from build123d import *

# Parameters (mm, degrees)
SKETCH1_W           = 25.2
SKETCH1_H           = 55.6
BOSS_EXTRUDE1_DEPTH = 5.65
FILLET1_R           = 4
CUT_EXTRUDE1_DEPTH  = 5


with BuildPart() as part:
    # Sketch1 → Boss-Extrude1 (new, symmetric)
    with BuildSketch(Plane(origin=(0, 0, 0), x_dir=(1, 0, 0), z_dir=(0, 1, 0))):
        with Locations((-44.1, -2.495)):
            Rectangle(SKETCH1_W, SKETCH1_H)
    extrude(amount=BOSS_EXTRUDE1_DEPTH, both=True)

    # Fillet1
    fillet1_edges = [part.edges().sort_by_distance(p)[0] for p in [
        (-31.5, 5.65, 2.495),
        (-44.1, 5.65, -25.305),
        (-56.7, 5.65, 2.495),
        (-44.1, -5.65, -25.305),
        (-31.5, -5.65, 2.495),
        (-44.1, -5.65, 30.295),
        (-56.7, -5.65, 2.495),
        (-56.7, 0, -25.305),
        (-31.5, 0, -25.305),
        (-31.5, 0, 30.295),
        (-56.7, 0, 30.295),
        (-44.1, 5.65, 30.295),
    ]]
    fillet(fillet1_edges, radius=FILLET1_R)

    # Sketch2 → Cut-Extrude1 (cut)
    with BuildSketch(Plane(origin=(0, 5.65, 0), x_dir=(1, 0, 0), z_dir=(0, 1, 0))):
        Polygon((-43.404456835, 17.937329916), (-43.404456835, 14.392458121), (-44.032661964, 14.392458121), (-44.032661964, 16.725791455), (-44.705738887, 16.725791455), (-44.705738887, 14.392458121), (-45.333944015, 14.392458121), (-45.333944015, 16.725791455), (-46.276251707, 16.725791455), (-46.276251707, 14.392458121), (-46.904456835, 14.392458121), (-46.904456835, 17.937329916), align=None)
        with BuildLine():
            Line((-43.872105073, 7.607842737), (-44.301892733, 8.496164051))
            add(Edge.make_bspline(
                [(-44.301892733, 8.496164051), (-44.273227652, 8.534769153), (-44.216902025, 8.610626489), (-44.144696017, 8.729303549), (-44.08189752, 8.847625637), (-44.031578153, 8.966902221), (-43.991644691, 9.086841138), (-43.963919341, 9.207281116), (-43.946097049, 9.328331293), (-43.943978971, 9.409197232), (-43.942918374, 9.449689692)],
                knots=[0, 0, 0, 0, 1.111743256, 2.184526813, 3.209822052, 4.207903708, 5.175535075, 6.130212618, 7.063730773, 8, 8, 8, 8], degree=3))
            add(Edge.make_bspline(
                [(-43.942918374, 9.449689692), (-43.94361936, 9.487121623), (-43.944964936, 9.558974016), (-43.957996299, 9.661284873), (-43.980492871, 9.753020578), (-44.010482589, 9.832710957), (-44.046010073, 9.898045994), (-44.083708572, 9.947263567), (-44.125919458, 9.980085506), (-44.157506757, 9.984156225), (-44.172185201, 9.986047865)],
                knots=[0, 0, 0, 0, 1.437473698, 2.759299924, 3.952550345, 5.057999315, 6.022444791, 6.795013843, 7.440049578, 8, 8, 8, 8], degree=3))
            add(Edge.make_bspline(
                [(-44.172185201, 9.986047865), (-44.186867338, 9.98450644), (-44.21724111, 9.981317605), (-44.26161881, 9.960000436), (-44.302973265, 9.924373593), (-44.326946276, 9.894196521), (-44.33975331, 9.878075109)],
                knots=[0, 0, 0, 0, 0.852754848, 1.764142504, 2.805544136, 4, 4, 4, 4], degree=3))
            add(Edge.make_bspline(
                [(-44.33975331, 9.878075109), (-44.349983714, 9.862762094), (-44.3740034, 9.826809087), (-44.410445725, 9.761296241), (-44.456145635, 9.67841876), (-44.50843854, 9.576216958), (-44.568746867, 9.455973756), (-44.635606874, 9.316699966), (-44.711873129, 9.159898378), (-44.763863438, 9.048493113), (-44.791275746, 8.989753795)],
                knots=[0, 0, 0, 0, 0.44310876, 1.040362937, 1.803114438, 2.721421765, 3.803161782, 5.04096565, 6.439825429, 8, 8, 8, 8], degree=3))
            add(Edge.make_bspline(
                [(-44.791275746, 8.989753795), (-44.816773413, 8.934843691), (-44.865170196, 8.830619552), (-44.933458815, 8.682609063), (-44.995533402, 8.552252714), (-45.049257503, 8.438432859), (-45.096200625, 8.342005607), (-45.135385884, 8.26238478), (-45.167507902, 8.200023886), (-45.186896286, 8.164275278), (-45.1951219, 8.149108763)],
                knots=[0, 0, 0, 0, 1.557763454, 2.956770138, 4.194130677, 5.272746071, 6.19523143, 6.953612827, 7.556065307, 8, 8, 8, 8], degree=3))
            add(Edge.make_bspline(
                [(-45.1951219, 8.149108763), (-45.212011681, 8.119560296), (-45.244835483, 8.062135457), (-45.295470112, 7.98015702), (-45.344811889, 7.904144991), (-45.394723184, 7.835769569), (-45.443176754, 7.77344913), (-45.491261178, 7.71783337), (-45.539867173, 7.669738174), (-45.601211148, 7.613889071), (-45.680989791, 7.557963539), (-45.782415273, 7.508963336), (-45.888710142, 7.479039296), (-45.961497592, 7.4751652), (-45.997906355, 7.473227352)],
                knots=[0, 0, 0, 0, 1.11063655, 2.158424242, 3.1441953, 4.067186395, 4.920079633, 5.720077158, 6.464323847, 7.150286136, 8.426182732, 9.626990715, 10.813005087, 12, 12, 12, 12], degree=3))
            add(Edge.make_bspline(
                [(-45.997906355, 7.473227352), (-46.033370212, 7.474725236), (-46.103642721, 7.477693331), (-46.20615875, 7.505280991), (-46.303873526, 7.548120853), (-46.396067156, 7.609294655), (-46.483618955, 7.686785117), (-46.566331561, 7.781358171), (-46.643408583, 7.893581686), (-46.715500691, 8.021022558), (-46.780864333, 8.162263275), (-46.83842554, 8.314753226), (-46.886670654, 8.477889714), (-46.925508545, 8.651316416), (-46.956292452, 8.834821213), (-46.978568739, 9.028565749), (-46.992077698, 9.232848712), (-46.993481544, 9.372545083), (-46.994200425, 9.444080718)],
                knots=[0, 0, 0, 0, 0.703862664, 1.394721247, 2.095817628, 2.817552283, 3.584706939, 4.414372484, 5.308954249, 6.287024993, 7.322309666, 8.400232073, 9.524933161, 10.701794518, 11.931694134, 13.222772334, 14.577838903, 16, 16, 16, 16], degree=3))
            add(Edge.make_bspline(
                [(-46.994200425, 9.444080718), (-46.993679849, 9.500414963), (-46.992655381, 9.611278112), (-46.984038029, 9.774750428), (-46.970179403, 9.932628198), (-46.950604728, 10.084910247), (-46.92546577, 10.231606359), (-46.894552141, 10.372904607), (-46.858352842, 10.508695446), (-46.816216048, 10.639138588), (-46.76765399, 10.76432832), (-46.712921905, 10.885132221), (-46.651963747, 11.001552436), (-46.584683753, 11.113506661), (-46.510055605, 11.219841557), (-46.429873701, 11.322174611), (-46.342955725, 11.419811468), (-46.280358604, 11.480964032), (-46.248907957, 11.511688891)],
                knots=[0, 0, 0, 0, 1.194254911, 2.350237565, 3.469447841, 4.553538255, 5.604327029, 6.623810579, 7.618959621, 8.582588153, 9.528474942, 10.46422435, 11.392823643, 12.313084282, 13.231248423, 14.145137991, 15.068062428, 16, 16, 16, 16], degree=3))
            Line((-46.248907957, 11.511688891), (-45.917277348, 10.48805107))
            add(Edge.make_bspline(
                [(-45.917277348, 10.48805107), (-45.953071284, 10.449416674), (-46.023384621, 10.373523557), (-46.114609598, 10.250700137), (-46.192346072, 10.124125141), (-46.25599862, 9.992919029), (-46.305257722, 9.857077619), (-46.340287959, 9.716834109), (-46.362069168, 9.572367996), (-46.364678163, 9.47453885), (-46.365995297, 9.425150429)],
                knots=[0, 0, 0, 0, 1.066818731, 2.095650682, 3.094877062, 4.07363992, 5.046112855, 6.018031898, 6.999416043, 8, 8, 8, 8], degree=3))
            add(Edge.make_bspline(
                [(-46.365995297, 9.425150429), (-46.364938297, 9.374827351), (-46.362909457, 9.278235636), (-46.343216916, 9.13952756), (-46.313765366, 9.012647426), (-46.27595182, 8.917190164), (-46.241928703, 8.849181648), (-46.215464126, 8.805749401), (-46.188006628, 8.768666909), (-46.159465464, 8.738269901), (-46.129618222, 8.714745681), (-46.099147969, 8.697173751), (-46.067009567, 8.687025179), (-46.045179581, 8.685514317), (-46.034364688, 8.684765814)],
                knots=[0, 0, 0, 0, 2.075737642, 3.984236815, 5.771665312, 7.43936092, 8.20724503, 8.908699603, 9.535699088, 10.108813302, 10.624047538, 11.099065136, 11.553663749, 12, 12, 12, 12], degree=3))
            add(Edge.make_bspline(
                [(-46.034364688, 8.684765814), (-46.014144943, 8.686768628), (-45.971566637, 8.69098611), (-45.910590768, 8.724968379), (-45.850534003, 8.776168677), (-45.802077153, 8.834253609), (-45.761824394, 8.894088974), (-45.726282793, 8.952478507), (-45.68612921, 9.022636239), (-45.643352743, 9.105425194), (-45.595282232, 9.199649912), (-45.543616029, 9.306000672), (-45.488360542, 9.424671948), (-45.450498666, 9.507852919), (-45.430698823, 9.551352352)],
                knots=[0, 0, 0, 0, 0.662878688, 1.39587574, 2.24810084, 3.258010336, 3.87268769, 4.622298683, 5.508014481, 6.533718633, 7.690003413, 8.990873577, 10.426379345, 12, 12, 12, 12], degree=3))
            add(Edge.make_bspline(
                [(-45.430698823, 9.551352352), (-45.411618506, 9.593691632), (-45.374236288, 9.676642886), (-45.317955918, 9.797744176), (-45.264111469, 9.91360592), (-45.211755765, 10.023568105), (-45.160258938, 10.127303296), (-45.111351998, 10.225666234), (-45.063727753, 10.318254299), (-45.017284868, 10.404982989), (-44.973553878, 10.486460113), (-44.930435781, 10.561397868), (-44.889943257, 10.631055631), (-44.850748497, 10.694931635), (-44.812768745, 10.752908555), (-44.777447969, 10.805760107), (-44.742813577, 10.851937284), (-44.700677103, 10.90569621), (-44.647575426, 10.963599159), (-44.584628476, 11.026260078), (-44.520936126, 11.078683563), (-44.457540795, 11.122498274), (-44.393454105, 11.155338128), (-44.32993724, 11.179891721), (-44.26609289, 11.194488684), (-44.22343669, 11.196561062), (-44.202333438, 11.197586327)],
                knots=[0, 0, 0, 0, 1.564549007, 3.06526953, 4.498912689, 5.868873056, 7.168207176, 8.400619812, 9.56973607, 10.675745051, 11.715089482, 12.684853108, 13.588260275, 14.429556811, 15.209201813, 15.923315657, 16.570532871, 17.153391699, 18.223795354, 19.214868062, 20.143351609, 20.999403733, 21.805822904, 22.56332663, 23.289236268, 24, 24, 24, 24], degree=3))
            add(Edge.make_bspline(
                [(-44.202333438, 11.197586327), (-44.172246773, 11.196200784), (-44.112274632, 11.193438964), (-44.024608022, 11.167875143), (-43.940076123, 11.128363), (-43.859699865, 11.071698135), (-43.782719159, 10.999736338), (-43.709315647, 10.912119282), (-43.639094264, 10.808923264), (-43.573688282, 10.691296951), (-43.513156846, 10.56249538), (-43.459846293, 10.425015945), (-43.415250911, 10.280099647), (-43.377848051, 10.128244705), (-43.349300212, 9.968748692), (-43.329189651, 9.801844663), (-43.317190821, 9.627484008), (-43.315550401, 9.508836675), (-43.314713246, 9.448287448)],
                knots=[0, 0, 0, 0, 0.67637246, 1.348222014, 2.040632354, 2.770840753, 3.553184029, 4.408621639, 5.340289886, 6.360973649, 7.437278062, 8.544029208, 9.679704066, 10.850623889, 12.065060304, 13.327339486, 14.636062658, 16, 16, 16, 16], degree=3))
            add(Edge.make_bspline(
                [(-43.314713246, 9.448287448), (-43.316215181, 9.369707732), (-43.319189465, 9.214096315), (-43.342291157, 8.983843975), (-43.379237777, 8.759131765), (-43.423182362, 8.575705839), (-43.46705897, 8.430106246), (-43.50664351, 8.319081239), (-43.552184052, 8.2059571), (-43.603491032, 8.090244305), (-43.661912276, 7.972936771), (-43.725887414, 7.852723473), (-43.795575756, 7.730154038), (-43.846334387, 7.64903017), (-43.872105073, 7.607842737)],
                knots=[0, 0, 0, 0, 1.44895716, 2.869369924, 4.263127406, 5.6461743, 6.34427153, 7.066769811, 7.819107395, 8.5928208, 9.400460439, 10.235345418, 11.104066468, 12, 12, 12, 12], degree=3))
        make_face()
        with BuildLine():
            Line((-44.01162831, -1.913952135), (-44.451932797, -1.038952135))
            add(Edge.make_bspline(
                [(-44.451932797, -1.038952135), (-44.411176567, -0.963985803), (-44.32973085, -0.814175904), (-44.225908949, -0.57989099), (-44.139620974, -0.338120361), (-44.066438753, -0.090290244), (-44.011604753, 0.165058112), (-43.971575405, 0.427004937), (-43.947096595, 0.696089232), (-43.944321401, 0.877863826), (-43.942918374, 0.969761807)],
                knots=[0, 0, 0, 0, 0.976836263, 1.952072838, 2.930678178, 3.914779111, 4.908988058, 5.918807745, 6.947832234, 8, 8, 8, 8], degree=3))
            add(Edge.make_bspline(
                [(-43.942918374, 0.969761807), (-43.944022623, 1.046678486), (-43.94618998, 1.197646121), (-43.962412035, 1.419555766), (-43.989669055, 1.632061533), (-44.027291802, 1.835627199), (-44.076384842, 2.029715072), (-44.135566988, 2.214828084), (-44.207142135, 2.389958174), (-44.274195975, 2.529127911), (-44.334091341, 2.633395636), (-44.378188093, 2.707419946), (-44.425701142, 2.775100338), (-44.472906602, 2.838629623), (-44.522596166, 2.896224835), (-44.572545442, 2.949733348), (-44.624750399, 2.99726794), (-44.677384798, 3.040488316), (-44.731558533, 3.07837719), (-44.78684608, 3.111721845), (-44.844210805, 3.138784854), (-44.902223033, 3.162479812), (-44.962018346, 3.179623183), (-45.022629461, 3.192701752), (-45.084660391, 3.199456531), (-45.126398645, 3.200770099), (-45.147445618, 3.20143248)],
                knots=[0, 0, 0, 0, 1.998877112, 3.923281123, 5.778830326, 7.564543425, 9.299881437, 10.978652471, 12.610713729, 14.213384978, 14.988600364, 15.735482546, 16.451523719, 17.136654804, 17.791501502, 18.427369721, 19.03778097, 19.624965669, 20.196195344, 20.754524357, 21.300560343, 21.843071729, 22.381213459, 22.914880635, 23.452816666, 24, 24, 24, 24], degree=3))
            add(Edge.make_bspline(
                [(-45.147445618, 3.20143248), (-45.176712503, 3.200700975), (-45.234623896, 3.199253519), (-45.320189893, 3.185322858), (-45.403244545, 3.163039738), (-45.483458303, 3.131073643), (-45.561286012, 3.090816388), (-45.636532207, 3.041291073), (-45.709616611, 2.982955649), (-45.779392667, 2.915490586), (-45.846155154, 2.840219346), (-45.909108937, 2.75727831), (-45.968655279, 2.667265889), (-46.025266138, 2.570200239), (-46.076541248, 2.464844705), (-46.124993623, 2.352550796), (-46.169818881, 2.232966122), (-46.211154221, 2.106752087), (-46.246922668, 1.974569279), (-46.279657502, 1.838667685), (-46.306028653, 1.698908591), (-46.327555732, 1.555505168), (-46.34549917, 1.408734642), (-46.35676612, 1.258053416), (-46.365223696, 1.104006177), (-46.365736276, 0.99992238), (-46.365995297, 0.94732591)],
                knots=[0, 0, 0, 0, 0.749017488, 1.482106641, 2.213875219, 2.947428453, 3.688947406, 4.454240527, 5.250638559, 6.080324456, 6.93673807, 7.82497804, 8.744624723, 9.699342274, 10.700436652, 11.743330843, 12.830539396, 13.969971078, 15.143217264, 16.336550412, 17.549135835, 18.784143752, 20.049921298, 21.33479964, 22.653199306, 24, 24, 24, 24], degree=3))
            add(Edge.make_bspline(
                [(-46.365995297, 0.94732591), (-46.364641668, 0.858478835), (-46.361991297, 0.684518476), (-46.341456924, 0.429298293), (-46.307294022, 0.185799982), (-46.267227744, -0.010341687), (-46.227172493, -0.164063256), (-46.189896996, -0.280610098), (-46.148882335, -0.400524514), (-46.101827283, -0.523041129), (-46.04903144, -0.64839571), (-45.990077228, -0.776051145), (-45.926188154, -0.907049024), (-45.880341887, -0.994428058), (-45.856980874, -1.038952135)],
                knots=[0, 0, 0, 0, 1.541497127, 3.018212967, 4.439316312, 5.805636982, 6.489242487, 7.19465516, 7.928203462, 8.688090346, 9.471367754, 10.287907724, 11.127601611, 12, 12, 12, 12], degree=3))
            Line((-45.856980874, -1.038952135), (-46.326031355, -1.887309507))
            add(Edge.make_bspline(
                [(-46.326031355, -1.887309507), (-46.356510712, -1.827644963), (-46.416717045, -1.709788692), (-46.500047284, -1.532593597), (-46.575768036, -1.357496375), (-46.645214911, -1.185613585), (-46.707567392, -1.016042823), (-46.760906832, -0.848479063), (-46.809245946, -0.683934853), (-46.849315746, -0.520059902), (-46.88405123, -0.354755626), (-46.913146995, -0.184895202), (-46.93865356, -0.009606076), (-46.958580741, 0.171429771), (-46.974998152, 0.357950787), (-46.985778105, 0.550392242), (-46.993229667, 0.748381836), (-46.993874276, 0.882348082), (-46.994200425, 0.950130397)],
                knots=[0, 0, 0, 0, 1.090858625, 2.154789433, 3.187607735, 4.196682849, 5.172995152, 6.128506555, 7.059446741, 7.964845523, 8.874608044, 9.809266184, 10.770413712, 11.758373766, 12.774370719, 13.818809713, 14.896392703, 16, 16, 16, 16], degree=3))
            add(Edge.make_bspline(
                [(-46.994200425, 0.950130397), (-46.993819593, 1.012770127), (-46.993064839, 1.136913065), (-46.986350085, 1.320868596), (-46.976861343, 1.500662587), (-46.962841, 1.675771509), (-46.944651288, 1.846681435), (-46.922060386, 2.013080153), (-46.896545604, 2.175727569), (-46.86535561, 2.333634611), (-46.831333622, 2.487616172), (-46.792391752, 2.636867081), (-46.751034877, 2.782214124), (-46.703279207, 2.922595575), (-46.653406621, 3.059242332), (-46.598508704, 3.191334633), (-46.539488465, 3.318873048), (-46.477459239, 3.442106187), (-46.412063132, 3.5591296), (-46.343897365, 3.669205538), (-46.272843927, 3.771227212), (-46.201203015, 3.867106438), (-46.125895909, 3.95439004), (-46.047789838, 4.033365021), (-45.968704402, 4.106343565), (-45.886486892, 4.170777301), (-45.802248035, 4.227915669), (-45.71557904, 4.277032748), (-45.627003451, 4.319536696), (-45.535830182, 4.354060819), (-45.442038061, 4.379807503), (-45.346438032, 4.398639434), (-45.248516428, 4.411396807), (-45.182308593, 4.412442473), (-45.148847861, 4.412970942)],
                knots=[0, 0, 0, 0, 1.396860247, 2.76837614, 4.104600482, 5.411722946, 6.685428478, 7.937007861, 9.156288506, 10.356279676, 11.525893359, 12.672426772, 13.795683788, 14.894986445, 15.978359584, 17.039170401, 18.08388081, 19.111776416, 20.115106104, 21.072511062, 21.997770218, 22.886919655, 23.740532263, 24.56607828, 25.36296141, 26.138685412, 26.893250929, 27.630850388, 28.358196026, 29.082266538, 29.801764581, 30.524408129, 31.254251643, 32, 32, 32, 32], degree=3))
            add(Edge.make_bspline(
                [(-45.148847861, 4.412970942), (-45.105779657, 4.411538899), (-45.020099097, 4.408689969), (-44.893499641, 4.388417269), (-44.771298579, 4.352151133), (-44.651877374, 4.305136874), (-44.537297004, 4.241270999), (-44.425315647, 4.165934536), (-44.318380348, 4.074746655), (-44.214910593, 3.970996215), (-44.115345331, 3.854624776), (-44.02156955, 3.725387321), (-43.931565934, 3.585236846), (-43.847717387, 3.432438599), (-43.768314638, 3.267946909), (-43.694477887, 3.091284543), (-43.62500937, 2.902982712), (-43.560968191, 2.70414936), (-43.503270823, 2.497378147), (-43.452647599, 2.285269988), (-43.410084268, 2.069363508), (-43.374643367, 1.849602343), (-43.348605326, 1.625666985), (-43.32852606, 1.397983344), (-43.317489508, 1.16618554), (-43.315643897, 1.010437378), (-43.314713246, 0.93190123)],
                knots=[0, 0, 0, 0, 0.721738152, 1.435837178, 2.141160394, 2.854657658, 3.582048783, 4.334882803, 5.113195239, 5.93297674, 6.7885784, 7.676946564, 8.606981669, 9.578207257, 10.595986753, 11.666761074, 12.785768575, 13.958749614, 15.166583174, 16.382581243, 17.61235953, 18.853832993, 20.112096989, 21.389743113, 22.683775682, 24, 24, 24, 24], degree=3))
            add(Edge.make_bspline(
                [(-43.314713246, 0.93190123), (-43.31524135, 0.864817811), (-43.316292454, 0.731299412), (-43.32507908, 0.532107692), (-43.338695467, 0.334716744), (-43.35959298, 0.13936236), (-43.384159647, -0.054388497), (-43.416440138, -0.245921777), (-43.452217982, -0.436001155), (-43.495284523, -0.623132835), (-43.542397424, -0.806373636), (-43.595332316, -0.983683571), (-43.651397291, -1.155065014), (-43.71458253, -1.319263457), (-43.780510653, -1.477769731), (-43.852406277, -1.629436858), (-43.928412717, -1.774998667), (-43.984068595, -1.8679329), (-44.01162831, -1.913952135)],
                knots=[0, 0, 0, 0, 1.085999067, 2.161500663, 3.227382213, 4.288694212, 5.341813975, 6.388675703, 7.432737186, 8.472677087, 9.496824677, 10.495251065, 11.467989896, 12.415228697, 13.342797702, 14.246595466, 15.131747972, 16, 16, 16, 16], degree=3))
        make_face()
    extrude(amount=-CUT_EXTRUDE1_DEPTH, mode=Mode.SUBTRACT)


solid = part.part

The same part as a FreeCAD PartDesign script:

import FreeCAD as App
import Part
import Sketcher
from FreeCAD import Vector
Q = App.Units.Quantity

doc = App.newDocument("Part")
body = doc.addObject("PartDesign::Body", "Body")

# Sketch on XZ plane
sketch1 = body.newObject("Sketcher::SketchObject", "Sketch")
sketch1.AttachmentSupport = (doc.getObject("XZ_Plane"), [""])
sketch1.MapMode = "FlatFace"
sketch1.addGeometry([
    Part.LineSegment(Vector(-57, -25, 0), Vector(-57, 30, 0)),
    Part.LineSegment(Vector(-57, 30, 0), Vector(-32, 30, 0)),
    Part.LineSegment(Vector(-32, 30, 0), Vector(-32, -25, 0)),
    Part.LineSegment(Vector(-32, -25, 0), Vector(-57, -25, 0)),
], False)
sketch1.addConstraint([
    Sketcher.Constraint("Coincident", 0, 2, 1, 1),
    Sketcher.Constraint("Coincident", 1, 2, 2, 1),
    Sketcher.Constraint("Coincident", 2, 2, 3, 1),
    Sketcher.Constraint("Coincident", 3, 2, 0, 1),
    Sketcher.Constraint("Vertical", 0),
    Sketcher.Constraint("Horizontal", 1),
    Sketcher.Constraint("Vertical", 2),
    Sketcher.Constraint("Horizontal", 3),
    Sketcher.Constraint("DistanceX", 1, 1, 1, 2, Q("25.2 mm")),
    Sketcher.Constraint("DistanceY", 0, 1, 0, 2, Q("55.6 mm")),
    Sketcher.Constraint("DistanceX", 0, 2, -1, 1, Q("56.7 mm")),
    Sketcher.Constraint("DistanceY", -1, 1, 0, 2, Q("30.295 mm")),
])
pad1 = body.newObject("PartDesign::Pad", "Pad")
pad1.Profile = sketch1
pad1.Length = 11.3
pad1.Midplane = True
doc.recompute()

fillet = body.newObject("PartDesign::Fillet", "Fillet")
fillet.Base = (pad1, ["Edge1"])
fillet.UseAllEdges = True
fillet.Radius = 4

# Sketch on XZ plane
sketch2 = body.newObject("Sketcher::SketchObject", "Sketch001")
sketch2.AttachmentSupport = (doc.getObject("XZ_Plane"), [""])
sketch2.MapMode = "FlatFace"
sketch2.AttachmentOffset = App.Placement(Vector(0, 0, -5.65), App.Rotation())
sketch2.addGeometry([
    Part.LineSegment(Vector(-43.404457, -14.392458, 0), Vector(-43.404457, -17.93733, 0)),  # 0
    Part.LineSegment(Vector(-43.404457, -17.93733, 0), Vector(-46.904457, -17.93733, 0)),  # 1
    Part.LineSegment(Vector(-46.904457, -17.93733, 0), Vector(-46.904457, -14.392458, 0)),  # 2
    Part.LineSegment(Vector(-46.904457, -14.392458, 0), Vector(-46.276252, -14.392458, 0)),  # 3
    Part.LineSegment(Vector(-46.276252, -14.392458, 0), Vector(-46.276252, -16.725791, 0)),  # 4
    Part.LineSegment(Vector(-46.276252, -16.725791, 0), Vector(-45.333944, -16.725791, 0)),  # 5
    Part.LineSegment(Vector(-45.333944, -16.725791, 0), Vector(-45.333944, -14.392458, 0)),  # 6
    Part.LineSegment(Vector(-45.333944, -14.392458, 0), Vector(-44.705739, -14.392458, 0)),  # 7
    Part.LineSegment(Vector(-44.705739, -14.392458, 0), Vector(-44.705739, -16.725791, 0)),  # 8
    Part.LineSegment(Vector(-44.705739, -16.725791, 0), Vector(-44.032662, -16.725791, 0)),  # 9
    Part.LineSegment(Vector(-44.032662, -16.725791, 0), Vector(-44.032662, -14.392458, 0)),  # 10
    Part.LineSegment(Vector(-44.032662, -14.392458, 0), Vector(-43.404457, -14.392458, 0)),  # 11
    Part.LineSegment(Vector(-44.301893, -8.496164, 0), Vector(-43.872105, -7.607843, 0)),  # 12
    Part.BSplineCurve([Vector(-43.314713, -9.448287, 0), Vector(-43.316215, -9.369708, 0), Vector(-43.319189, -9.214096, 0), Vector(-43.342291, -8.983844, 0), Vector(-43.379238, -8.759132, 0), Vector(-43.423182, -8.575706, 0), Vector(-43.467059, -8.430106, 0), Vector(-43.506644, -8.319081, 0), Vector(-43.552184, -8.205957, 0), Vector(-43.603491, -8.090244, 0), Vector(-43.661912, -7.972937, 0), Vector(-43.725887, -7.852723, 0), Vector(-43.795576, -7.730154, 0), Vector(-43.846334, -7.64903, 0), Vector(-43.872105, -7.607843, 0)], [4, 1, 1, 1, 1, 1, 1, 1, 1, 1, 1, 1, 4], [0, 1.44895716, 2.869369924, 4.263127406, 5.6461743, 6.34427153, 7.066769811, 7.819107395, 8.5928208, 9.400460439, 10.235345418, 11.104066468, 12], False, 3, [1, 1, 1, 1, 1, 1, 1, 1, 1, 1, 1, 1, 1, 1, 1], False),  # 13
    Part.BSplineCurve([Vector(-44.202333, -11.197586, 0), Vector(-44.172247, -11.196201, 0), Vector(-44.112275, -11.193439, 0), Vector(-44.024608, -11.167875, 0), Vector(-43.940076, -11.128363, 0), Vector(-43.8597, -11.071698, 0), Vector(-43.782719, -10.999736, 0), Vector(-43.709316, -10.912119, 0), Vector(-43.639094, -10.808923, 0), Vector(-43.573688, -10.691297, 0), Vector(-43.513157, -10.562495, 0), Vector(-43.459846, -10.425016, 0), Vector(-43.415251, -10.2801, 0), Vector(-43.377848, -10.128245, 0), Vector(-43.3493, -9.968749, 0), Vector(-43.32919, -9.801845, 0), Vector(-43.317191, -9.627484, 0), Vector(-43.31555, -9.508837, 0), Vector(-43.314713, -9.448287, 0)], [4, 1, 1, 1, 1, 1, 1, 1, 1, 1, 1, 1, 1, 1, 1, 1, 4], [0, 0.67637246, 1.348222014, 2.040632354, 2.770840753, 3.553184029, 4.408621639, 5.340289886, 6.360973649, 7.437278062, 8.544029208, 9.679704066, 10.850623889, 12.065060304, 13.327339486, 14.636062658, 16], False, 3, [1, 1, 1, 1, 1, 1, 1, 1, 1, 1, 1, 1, 1, 1, 1, 1, 1, 1, 1], False),  # 14
    Part.BSplineCurve([Vector(-45.430699, -9.551352, 0), Vector(-45.411619, -9.593692, 0), Vector(-45.374236, -9.676643, 0), Vector(-45.317956, -9.797744, 0), Vector(-45.264111, -9.913606, 0), Vector(-45.211756, -10.023568, 0), Vector(-45.160259, -10.127303, 0), Vector(-45.111352, -10.225666, 0), Vector(-45.063728, -10.318254, 0), Vector(-45.017285, -10.404983, 0), Vector(-44.973554, -10.48646, 0), Vector(-44.930436, -10.561398, 0), Vector(-44.889943, -10.631056, 0), Vector(-44.850748, -10.694932, 0), Vector(-44.812769, -10.752909, 0), Vector(-44.777448, -10.80576, 0), Vector(-44.742814, -10.851937, 0), Vector(-44.700677, -10.905696, 0), Vector(-44.647575, -10.963599, 0), Vector(-44.584628, -11.02626, 0), Vector(-44.520936, -11.078684, 0), Vector(-44.457541, -11.122498, 0), Vector(-44.393454, -11.155338, 0), Vector(-44.329937, -11.179892, 0), Vector(-44.266093, -11.194489, 0), Vector(-44.223437, -11.196561, 0), Vector(-44.202333, -11.197586, 0)], [4, 1, 1, 1, 1, 1, 1, 1, 1, 1, 1, 1, 1, 1, 1, 1, 1, 1, 1, 1, 1, 1, 1, 1, 4], [0, 1.564549007, 3.06526953, 4.498912689, 5.868873056, 7.168207176, 8.400619812, 9.56973607, 10.675745051, 11.715089482, 12.684853108, 13.588260275, 14.429556811, 15.209201813, 15.923315657, 16.570532871, 17.153391699, 18.223795354, 19.214868062, 20.143351609, 20.999403733, 21.805822904, 22.56332663, 23.289236268, 24], False, 3, [1, 1, 1, 1, 1, 1, 1, 1, 1, 1, 1, 1, 1, 1, 1, 1, 1, 1, 1, 1, 1, 1, 1, 1, 1, 1, 1], False),  # 15
    Part.BSplineCurve([Vector(-46.034365, -8.684766, 0), Vector(-46.014145, -8.686769, 0), Vector(-45.971567, -8.690986, 0), Vector(-45.910591, -8.724968, 0), Vector(-45.850534, -8.776169, 0), Vector(-45.802077, -8.834254, 0), Vector(-45.761824, -8.894089, 0), Vector(-45.726283, -8.952479, 0), Vector(-45.686129, -9.022636, 0), Vector(-45.643353, -9.105425, 0), Vector(-45.595282, -9.19965, 0), Vector(-45.543616, -9.306001, 0), Vector(-45.488361, -9.424672, 0), Vector(-45.450499, -9.507853, 0), Vector(-45.430699, -9.551352, 0)], [4, 1, 1, 1, 1, 1, 1, 1, 1, 1, 1, 1, 4], [0, 0.662878688, 1.39587574, 2.24810084, 3.258010336, 3.87268769, 4.622298683, 5.508014481, 6.533718633, 7.690003413, 8.990873577, 10.426379345, 12], False, 3, [1, 1, 1, 1, 1, 1, 1, 1, 1, 1, 1, 1, 1, 1, 1], False),  # 16
    Part.BSplineCurve([Vector(-46.365995, -9.42515, 0), Vector(-46.364938, -9.374827, 0), Vector(-46.362909, -9.278236, 0), Vector(-46.343217, -9.139528, 0), Vector(-46.313765, -9.012647, 0), Vector(-46.275952, -8.91719, 0), Vector(-46.241929, -8.849182, 0), Vector(-46.215464, -8.805749, 0), Vector(-46.188007, -8.768667, 0), Vector(-46.159465, -8.73827, 0), Vector(-46.129618, -8.714746, 0), Vector(-46.099148, -8.697174, 0), Vector(-46.06701, -8.687025, 0), Vector(-46.04518, -8.685514, 0), Vector(-46.034365, -8.684766, 0)], [4, 1, 1, 1, 1, 1, 1, 1, 1, 1, 1, 1, 4], [0, 2.075737642, 3.984236815, 5.771665312, 7.43936092, 8.20724503, 8.908699603, 9.535699088, 10.108813302, 10.624047538, 11.099065136, 11.553663749, 12], False, 3, [1, 1, 1, 1, 1, 1, 1, 1, 1, 1, 1, 1, 1, 1, 1], False),  # 17
    Part.BSplineCurve([Vector(-45.917277, -10.488051, 0), Vector(-45.953071, -10.449417, 0), Vector(-46.023385, -10.373524, 0), Vector(-46.11461, -10.2507, 0), Vector(-46.192346, -10.124125, 0), Vector(-46.255999, -9.992919, 0), Vector(-46.305258, -9.857078, 0), Vector(-46.340288, -9.716834, 0), Vector(-46.362069, -9.572368, 0), Vector(-46.364678, -9.474539, 0), Vector(-46.365995, -9.42515, 0)], [4, 1, 1, 1, 1, 1, 1, 1, 4], [0, 1.066818731, 2.095650682, 3.094877062, 4.07363992, 5.046112855, 6.018031898, 6.999416043, 8], False, 3, [1, 1, 1, 1, 1, 1, 1, 1, 1, 1, 1], False),  # 18
    Part.LineSegment(Vector(-45.917277, -10.488051, 0), Vector(-46.248908, -11.511689, 0)),  # 19
    Part.BSplineCurve([Vector(-46.9942, -9.444081, 0), Vector(-46.99368, -9.500415, 0), Vector(-46.992655, -9.611278, 0), Vector(-46.984038, -9.77475, 0), Vector(-46.970179, -9.932628, 0), Vector(-46.950605, -10.08491, 0), Vector(-46.925466, -10.231606, 0), Vector(-46.894552, -10.372905, 0), Vector(-46.858353, -10.508695, 0), Vector(-46.816216, -10.639139, 0), Vector(-46.767654, -10.764328, 0), Vector(-46.712922, -10.885132, 0), Vector(-46.651964, -11.001552, 0), Vector(-46.584684, -11.113507, 0), Vector(-46.510056, -11.219842, 0), Vector(-46.429874, -11.322175, 0), Vector(-46.342956, -11.419811, 0), Vector(-46.280359, -11.480964, 0), Vector(-46.248908, -11.511689, 0)], [4, 1, 1, 1, 1, 1, 1, 1, 1, 1, 1, 1, 1, 1, 1, 1, 4], [0, 1.194254911, 2.350237565, 3.469447841, 4.553538255, 5.604327029, 6.623810579, 7.618959621, 8.582588153, 9.528474942, 10.46422435, 11.392823643, 12.313084282, 13.231248423, 14.145137991, 15.068062428, 16], False, 3, [1, 1, 1, 1, 1, 1, 1, 1, 1, 1, 1, 1, 1, 1, 1, 1, 1, 1, 1], False),  # 20
    Part.BSplineCurve([Vector(-45.997906, -7.473227, 0), Vector(-46.03337, -7.474725, 0), Vector(-46.103643, -7.477693, 0), Vector(-46.206159, -7.505281, 0), Vector(-46.303874, -7.548121, 0), Vector(-46.396067, -7.609295, 0), Vector(-46.483619, -7.686785, 0), Vector(-46.566332, -7.781358, 0), Vector(-46.643409, -7.893582, 0), Vector(-46.715501, -8.021023, 0), Vector(-46.780864, -8.162263, 0), Vector(-46.838426, -8.314753, 0), Vector(-46.886671, -8.47789, 0), Vector(-46.925509, -8.651316, 0), Vector(-46.956292, -8.834821, 0), Vector(-46.978569, -9.028566, 0), Vector(-46.992078, -9.232849, 0), Vector(-46.993482, -9.372545, 0), Vector(-46.9942, -9.444081, 0)], [4, 1, 1, 1, 1, 1, 1, 1, 1, 1, 1, 1, 1, 1, 1, 1, 4], [0, 0.703862664, 1.394721247, 2.095817628, 2.817552283, 3.584706939, 4.414372484, 5.308954249, 6.287024993, 7.322309666, 8.400232073, 9.524933161, 10.701794518, 11.931694134, 13.222772334, 14.577838903, 16], False, 3, [1, 1, 1, 1, 1, 1, 1, 1, 1, 1, 1, 1, 1, 1, 1, 1, 1, 1, 1], False),  # 21
    Part.BSplineCurve([Vector(-45.195122, -8.149109, 0), Vector(-45.212012, -8.11956, 0), Vector(-45.244835, -8.062135, 0), Vector(-45.29547, -7.980157, 0), Vector(-45.344812, -7.904145, 0), Vector(-45.394723, -7.83577, 0), Vector(-45.443177, -7.773449, 0), Vector(-45.491261, -7.717833, 0), Vector(-45.539867, -7.669738, 0), Vector(-45.601211, -7.613889, 0), Vector(-45.68099, -7.557964, 0), Vector(-45.782415, -7.508963, 0), Vector(-45.88871, -7.479039, 0), Vector(-45.961498, -7.475165, 0), Vector(-45.997906, -7.473227, 0)], [4, 1, 1, 1, 1, 1, 1, 1, 1, 1, 1, 1, 4], [0, 1.11063655, 2.158424242, 3.1441953, 4.067186395, 4.920079633, 5.720077158, 6.464323847, 7.150286136, 8.426182732, 9.626990715, 10.813005087, 12], False, 3, [1, 1, 1, 1, 1, 1, 1, 1, 1, 1, 1, 1, 1, 1, 1], False),  # 22
    Part.BSplineCurve([Vector(-44.791276, -8.989754, 0), Vector(-44.816773, -8.934844, 0), Vector(-44.86517, -8.83062, 0), Vector(-44.933459, -8.682609, 0), Vector(-44.995533, -8.552253, 0), Vector(-45.049258, -8.438433, 0), Vector(-45.096201, -8.342006, 0), Vector(-45.135386, -8.262385, 0), Vector(-45.167508, -8.200024, 0), Vector(-45.186896, -8.164275, 0), Vector(-45.195122, -8.149109, 0)], [4, 1, 1, 1, 1, 1, 1, 1, 4], [0, 1.557763454, 2.956770138, 4.194130677, 5.272746071, 6.19523143, 6.953612827, 7.556065307, 8], False, 3, [1, 1, 1, 1, 1, 1, 1, 1, 1, 1, 1], False),  # 23
    Part.BSplineCurve([Vector(-44.339753, -9.878075, 0), Vector(-44.349984, -9.862762, 0), Vector(-44.374003, -9.826809, 0), Vector(-44.410446, -9.761296, 0), Vector(-44.456146, -9.678419, 0), Vector(-44.508439, -9.576217, 0), Vector(-44.568747, -9.455974, 0), Vector(-44.635607, -9.3167, 0), Vector(-44.711873, -9.159898, 0), Vector(-44.763863, -9.048493, 0), Vector(-44.791276, -8.989754, 0)], [4, 1, 1, 1, 1, 1, 1, 1, 4], [0, 0.44310876, 1.040362937, 1.803114438, 2.721421765, 3.803161782, 5.04096565, 6.439825429, 8], False, 3, [1, 1, 1, 1, 1, 1, 1, 1, 1, 1, 1], False),  # 24
    Part.BSplineCurve([Vector(-44.172185, -9.986048, 0), Vector(-44.186867, -9.984506, 0), Vector(-44.217241, -9.981318, 0), Vector(-44.261619, -9.96, 0), Vector(-44.302973, -9.924374, 0), Vector(-44.326946, -9.894197, 0), Vector(-44.339753, -9.878075, 0)], [4, 1, 1, 1, 4], [0, 0.852754848, 1.764142504, 2.805544136, 4], False, 3, [1, 1, 1, 1, 1, 1, 1], False),  # 25
    Part.BSplineCurve([Vector(-43.942918, -9.44969, 0), Vector(-43.943619, -9.487122, 0), Vector(-43.944965, -9.558974, 0), Vector(-43.957996, -9.661285, 0), Vector(-43.980493, -9.753021, 0), Vector(-44.010483, -9.832711, 0), Vector(-44.04601, -9.898046, 0), Vector(-44.083709, -9.947264, 0), Vector(-44.125919, -9.980086, 0), Vector(-44.157507, -9.984156, 0), Vector(-44.172185, -9.986048, 0)], [4, 1, 1, 1, 1, 1, 1, 1, 4], [0, 1.437473698, 2.759299924, 3.952550345, 5.057999315, 6.022444791, 6.795013843, 7.440049578, 8], False, 3, [1, 1, 1, 1, 1, 1, 1, 1, 1, 1, 1], False),  # 26
    Part.BSplineCurve([Vector(-44.301893, -8.496164, 0), Vector(-44.273228, -8.534769, 0), Vector(-44.216902, -8.610626, 0), Vector(-44.144696, -8.729304, 0), Vector(-44.081898, -8.847626, 0), Vector(-44.031578, -8.966902, 0), Vector(-43.991645, -9.086841, 0), Vector(-43.963919, -9.207281, 0), Vector(-43.946097, -9.328331, 0), Vector(-43.943979, -9.409197, 0), Vector(-43.942918, -9.44969, 0)], [4, 1, 1, 1, 1, 1, 1, 1, 4], [0, 1.111743256, 2.184526813, 3.209822052, 4.207903708, 5.175535075, 6.130212618, 7.063730773, 8], False, 3, [1, 1, 1, 1, 1, 1, 1, 1, 1, 1, 1], False),  # 27
    Part.LineSegment(Vector(-44.451933, 1.038952, 0), Vector(-44.011628, 1.913952, 0)),  # 28
    Part.BSplineCurve([Vector(-43.314713, -0.931901, 0), Vector(-43.315241, -0.864818, 0), Vector(-43.316292, -0.731299, 0), Vector(-43.325079, -0.532108, 0), Vector(-43.338695, -0.334717, 0), Vector(-43.359593, -0.139362, 0), Vector(-43.38416, 0.054388, 0), Vector(-43.41644, 0.245922, 0), Vector(-43.452218, 0.436001, 0), Vector(-43.495285, 0.623133, 0), Vector(-43.542397, 0.806374, 0), Vector(-43.595332, 0.983684, 0), Vector(-43.651397, 1.155065, 0), Vector(-43.714583, 1.319263, 0), Vector(-43.780511, 1.47777, 0), Vector(-43.852406, 1.629437, 0), Vector(-43.928413, 1.774999, 0), Vector(-43.984069, 1.867933, 0), Vector(-44.011628, 1.913952, 0)], [4, 1, 1, 1, 1, 1, 1, 1, 1, 1, 1, 1, 1, 1, 1, 1, 4], [0, 1.085999067, 2.161500663, 3.227382213, 4.288694212, 5.341813975, 6.388675703, 7.432737186, 8.472677087, 9.496824677, 10.495251065, 11.467989896, 12.415228697, 13.342797702, 14.246595466, 15.131747972, 16], False, 3, [1, 1, 1, 1, 1, 1, 1, 1, 1, 1, 1, 1, 1, 1, 1, 1, 1, 1, 1], False),  # 29
    Part.BSplineCurve([Vector(-45.148848, -4.412971, 0), Vector(-45.10578, -4.411539, 0), Vector(-45.020099, -4.40869, 0), Vector(-44.8935, -4.388417, 0), Vector(-44.771299, -4.352151, 0), Vector(-44.651877, -4.305137, 0), Vector(-44.537297, -4.241271, 0), Vector(-44.425316, -4.165935, 0), Vector(-44.31838, -4.074747, 0), Vector(-44.214911, -3.970996, 0), Vector(-44.115345, -3.854625, 0), Vector(-44.02157, -3.725387, 0), Vector(-43.931566, -3.585237, 0), Vector(-43.847717, -3.432439, 0), Vector(-43.768315, -3.267947, 0), Vector(-43.694478, -3.091285, 0), Vector(-43.625009, -2.902983, 0), Vector(-43.560968, -2.704149, 0), Vector(-43.503271, -2.497378, 0), Vector(-43.452648, -2.28527, 0), Vector(-43.410084, -2.069364, 0), Vector(-43.374643, -1.849602, 0), Vector(-43.348605, -1.625667, 0), Vector(-43.328526, -1.397983, 0), Vector(-43.31749, -1.166186, 0), Vector(-43.315644, -1.010437, 0), Vector(-43.314713, -0.931901, 0)], [4, 1, 1, 1, 1, 1, 1, 1, 1, 1, 1, 1, 1, 1, 1, 1, 1, 1, 1, 1, 1, 1, 1, 1, 4], [0, 0.721738152, 1.435837178, 2.141160394, 2.854657658, 3.582048783, 4.334882803, 5.113195239, 5.93297674, 6.7885784, 7.676946564, 8.606981669, 9.578207257, 10.595986753, 11.666761074, 12.785768575, 13.958749614, 15.166583174, 16.382581243, 17.61235953, 18.853832993, 20.112096989, 21.389743113, 22.683775682, 24], False, 3, [1, 1, 1, 1, 1, 1, 1, 1, 1, 1, 1, 1, 1, 1, 1, 1, 1, 1, 1, 1, 1, 1, 1, 1, 1, 1, 1], False),  # 30
    Part.BSplineCurve([Vector(-46.9942, -0.95013, 0), Vector(-46.99382, -1.01277, 0), Vector(-46.993065, -1.136913, 0), Vector(-46.98635, -1.320869, 0), Vector(-46.976861, -1.500663, 0), Vector(-46.962841, -1.675772, 0), Vector(-46.944651, -1.846681, 0), Vector(-46.92206, -2.01308, 0), Vector(-46.896546, -2.175728, 0), Vector(-46.865356, -2.333635, 0), Vector(-46.831334, -2.487616, 0), Vector(-46.792392, -2.636867, 0), Vector(-46.751035, -2.782214, 0), Vector(-46.703279, -2.922596, 0), Vector(-46.653407, -3.059242, 0), Vector(-46.598509, -3.191335, 0), Vector(-46.539488, -3.318873, 0), Vector(-46.477459, -3.442106, 0), Vector(-46.412063, -3.55913, 0), Vector(-46.343897, -3.669206, 0), Vector(-46.272844, -3.771227, 0), Vector(-46.201203, -3.867106, 0), Vector(-46.125896, -3.95439, 0), Vector(-46.04779, -4.033365, 0), Vector(-45.968704, -4.106344, 0), Vector(-45.886487, -4.170777, 0), Vector(-45.802248, -4.227916, 0), Vector(-45.715579, -4.277033, 0), Vector(-45.627003, -4.319537, 0), Vector(-45.53583, -4.354061, 0), Vector(-45.442038, -4.379808, 0), Vector(-45.346438, -4.398639, 0), Vector(-45.248516, -4.411397, 0), Vector(-45.182309, -4.412442, 0), Vector(-45.148848, -4.412971, 0)], [4, 1, 1, 1, 1, 1, 1, 1, 1, 1, 1, 1, 1, 1, 1, 1, 1, 1, 1, 1, 1, 1, 1, 1, 1, 1, 1, 1, 1, 1, 1, 1, 4], [0, 1.396860247, 2.76837614, 4.104600482, 5.411722946, 6.685428478, 7.937007861, 9.156288506, 10.356279676, 11.525893359, 12.672426772, 13.795683788, 14.894986445, 15.978359584, 17.039170401, 18.08388081, 19.111776416, 20.115106104, 21.072511062, 21.997770218, 22.886919655, 23.740532263, 24.56607828, 25.36296141, 26.138685412, 26.893250929, 27.630850388, 28.358196026, 29.082266538, 29.801764581, 30.524408129, 31.254251643, 32], False, 3, [1, 1, 1, 1, 1, 1, 1, 1, 1, 1, 1, 1, 1, 1, 1, 1, 1, 1, 1, 1, 1, 1, 1, 1, 1, 1, 1, 1, 1, 1, 1, 1, 1, 1, 1], False),  # 31
    Part.BSplineCurve([Vector(-46.326031, 1.88731, 0), Vector(-46.356511, 1.827645, 0), Vector(-46.416717, 1.709789, 0), Vector(-46.500047, 1.532594, 0), Vector(-46.575768, 1.357496, 0), Vector(-46.645215, 1.185614, 0), Vector(-46.707567, 1.016043, 0), Vector(-46.760907, 0.848479, 0), Vector(-46.809246, 0.683935, 0), Vector(-46.849316, 0.52006, 0), Vector(-46.884051, 0.354756, 0), Vector(-46.913147, 0.184895, 0), Vector(-46.938654, 0.009606, 0), Vector(-46.958581, -0.17143, 0), Vector(-46.974998, -0.357951, 0), Vector(-46.985778, -0.550392, 0), Vector(-46.99323, -0.748382, 0), Vector(-46.993874, -0.882348, 0), Vector(-46.9942, -0.95013, 0)], [4, 1, 1, 1, 1, 1, 1, 1, 1, 1, 1, 1, 1, 1, 1, 1, 4], [0, 1.090858625, 2.154789433, 3.187607735, 4.196682849, 5.172995152, 6.128506555, 7.059446741, 7.964845523, 8.874608044, 9.809266184, 10.770413712, 11.758373766, 12.774370719, 13.818809713, 14.896392703, 16], False, 3, [1, 1, 1, 1, 1, 1, 1, 1, 1, 1, 1, 1, 1, 1, 1, 1, 1, 1, 1], False),  # 32
    Part.LineSegment(Vector(-46.326031, 1.88731, 0), Vector(-45.856981, 1.038952, 0)),  # 33
    Part.BSplineCurve([Vector(-46.365995, -0.947326, 0), Vector(-46.364642, -0.858479, 0), Vector(-46.361991, -0.684518, 0), Vector(-46.341457, -0.429298, 0), Vector(-46.307294, -0.1858, 0), Vector(-46.267228, 0.010342, 0), Vector(-46.227172, 0.164063, 0), Vector(-46.189897, 0.28061, 0), Vector(-46.148882, 0.400525, 0), Vector(-46.101827, 0.523041, 0), Vector(-46.049031, 0.648396, 0), Vector(-45.990077, 0.776051, 0), Vector(-45.926188, 0.907049, 0), Vector(-45.880342, 0.994428, 0), Vector(-45.856981, 1.038952, 0)], [4, 1, 1, 1, 1, 1, 1, 1, 1, 1, 1, 1, 4], [0, 1.541497127, 3.018212967, 4.439316312, 5.805636982, 6.489242487, 7.19465516, 7.928203462, 8.688090346, 9.471367754, 10.287907724, 11.127601611, 12], False, 3, [1, 1, 1, 1, 1, 1, 1, 1, 1, 1, 1, 1, 1, 1, 1], False),  # 34
    Part.BSplineCurve([Vector(-45.147446, -3.201432, 0), Vector(-45.176713, -3.200701, 0), Vector(-45.234624, -3.199254, 0), Vector(-45.32019, -3.185323, 0), Vector(-45.403245, -3.16304, 0), Vector(-45.483458, -3.131074, 0), Vector(-45.561286, -3.090816, 0), Vector(-45.636532, -3.041291, 0), Vector(-45.709617, -2.982956, 0), Vector(-45.779393, -2.915491, 0), Vector(-45.846155, -2.840219, 0), Vector(-45.909109, -2.757278, 0), Vector(-45.968655, -2.667266, 0), Vector(-46.025266, -2.5702, 0), Vector(-46.076541, -2.464845, 0), Vector(-46.124994, -2.352551, 0), Vector(-46.169819, -2.232966, 0), Vector(-46.211154, -2.106752, 0), Vector(-46.246923, -1.974569, 0), Vector(-46.279658, -1.838668, 0), Vector(-46.306029, -1.698909, 0), Vector(-46.327556, -1.555505, 0), Vector(-46.345499, -1.408735, 0), Vector(-46.356766, -1.258053, 0), Vector(-46.365224, -1.104006, 0), Vector(-46.365736, -0.999922, 0), Vector(-46.365995, -0.947326, 0)], [4, 1, 1, 1, 1, 1, 1, 1, 1, 1, 1, 1, 1, 1, 1, 1, 1, 1, 1, 1, 1, 1, 1, 1, 4], [0, 0.749017488, 1.482106641, 2.213875219, 2.947428453, 3.688947406, 4.454240527, 5.250638559, 6.080324456, 6.93673807, 7.82497804, 8.744624723, 9.699342274, 10.700436652, 11.743330843, 12.830539396, 13.969971078, 15.143217264, 16.336550412, 17.549135835, 18.784143752, 20.049921298, 21.33479964, 22.653199306, 24], False, 3, [1, 1, 1, 1, 1, 1, 1, 1, 1, 1, 1, 1, 1, 1, 1, 1, 1, 1, 1, 1, 1, 1, 1, 1, 1, 1, 1], False),  # 35
    Part.BSplineCurve([Vector(-43.942918, -0.969762, 0), Vector(-43.944023, -1.046678, 0), Vector(-43.94619, -1.197646, 0), Vector(-43.962412, -1.419556, 0), Vector(-43.989669, -1.632062, 0), Vector(-44.027292, -1.835627, 0), Vector(-44.076385, -2.029715, 0), Vector(-44.135567, -2.214828, 0), Vector(-44.207142, -2.389958, 0), Vector(-44.274196, -2.529128, 0), Vector(-44.334091, -2.633396, 0), Vector(-44.378188, -2.70742, 0), Vector(-44.425701, -2.7751, 0), Vector(-44.472907, -2.83863, 0), Vector(-44.522596, -2.896225, 0), Vector(-44.572545, -2.949733, 0), Vector(-44.62475, -2.997268, 0), Vector(-44.677385, -3.040488, 0), Vector(-44.731559, -3.078377, 0), Vector(-44.786846, -3.111722, 0), Vector(-44.844211, -3.138785, 0), Vector(-44.902223, -3.16248, 0), Vector(-44.962018, -3.179623, 0), Vector(-45.022629, -3.192702, 0), Vector(-45.08466, -3.199457, 0), Vector(-45.126399, -3.20077, 0), Vector(-45.147446, -3.201432, 0)], [4, 1, 1, 1, 1, 1, 1, 1, 1, 1, 1, 1, 1, 1, 1, 1, 1, 1, 1, 1, 1, 1, 1, 1, 4], [0, 1.998877112, 3.923281123, 5.778830326, 7.564543425, 9.299881437, 10.978652471, 12.610713729, 14.213384978, 14.988600364, 15.735482546, 16.451523719, 17.136654804, 17.791501502, 18.427369721, 19.03778097, 19.624965669, 20.196195344, 20.754524357, 21.300560343, 21.843071729, 22.381213459, 22.914880635, 23.452816666, 24], False, 3, [1, 1, 1, 1, 1, 1, 1, 1, 1, 1, 1, 1, 1, 1, 1, 1, 1, 1, 1, 1, 1, 1, 1, 1, 1, 1, 1], False),  # 36
    Part.BSplineCurve([Vector(-44.451933, 1.038952, 0), Vector(-44.411177, 0.963986, 0), Vector(-44.329731, 0.814176, 0), Vector(-44.225909, 0.579891, 0), Vector(-44.139621, 0.33812, 0), Vector(-44.066439, 0.09029, 0), Vector(-44.011605, -0.165058, 0), Vector(-43.971575, -0.427005, 0), Vector(-43.947097, -0.696089, 0), Vector(-43.944321, -0.877864, 0), Vector(-43.942918, -0.969762, 0)], [4, 1, 1, 1, 1, 1, 1, 1, 4], [0, 0.976836263, 1.952072838, 2.930678178, 3.914779111, 4.908988058, 5.918807745, 6.947832234, 8], False, 3, [1, 1, 1, 1, 1, 1, 1, 1, 1, 1, 1], False),  # 37
], False)
sketch2.addConstraint([
    Sketcher.Constraint("Block", 13),
    Sketcher.Constraint("Block", 14),
    Sketcher.Constraint("Block", 15),
    Sketcher.Constraint("Block", 16),
    Sketcher.Constraint("Block", 17),
    Sketcher.Constraint("Block", 18),
    Sketcher.Constraint("Block", 20),
    Sketcher.Constraint("Block", 21),
    Sketcher.Constraint("Block", 22),
    Sketcher.Constraint("Block", 23),
    Sketcher.Constraint("Block", 24),
    Sketcher.Constraint("Block", 25),
    Sketcher.Constraint("Block", 26),
    Sketcher.Constraint("Block", 27),
    Sketcher.Constraint("Block", 29),
    Sketcher.Constraint("Block", 30),
    Sketcher.Constraint("Block", 31),
    Sketcher.Constraint("Block", 32),
    Sketcher.Constraint("Block", 34),
    Sketcher.Constraint("Block", 35),
    Sketcher.Constraint("Block", 36),
    Sketcher.Constraint("Block", 37),
    Sketcher.Constraint("Coincident", 0, 2, 1, 1),
    Sketcher.Constraint("Coincident", 1, 2, 2, 1),
    Sketcher.Constraint("Coincident", 2, 2, 3, 1),
    Sketcher.Constraint("Coincident", 3, 2, 4, 1),
    Sketcher.Constraint("Coincident", 4, 2, 5, 1),
    Sketcher.Constraint("Coincident", 5, 2, 6, 1),
    Sketcher.Constraint("Coincident", 6, 2, 7, 1),
    Sketcher.Constraint("Coincident", 7, 2, 8, 1),
    Sketcher.Constraint("Coincident", 8, 2, 9, 1),
    Sketcher.Constraint("Coincident", 9, 2, 10, 1),
    Sketcher.Constraint("Coincident", 10, 2, 11, 1),
    Sketcher.Constraint("Coincident", 11, 2, 0, 1),
    Sketcher.Constraint("Coincident", 12, 2, 13, 2),
    Sketcher.Constraint("Coincident", 18, 1, 19, 1),
    Sketcher.Constraint("Coincident", 19, 2, 20, 2),
    Sketcher.Constraint("Coincident", 27, 1, 12, 1),
    Sketcher.Constraint("Coincident", 28, 2, 29, 2),
    Sketcher.Constraint("Coincident", 32, 1, 33, 1),
    Sketcher.Constraint("Coincident", 33, 2, 34, 2),
    Sketcher.Constraint("Coincident", 37, 1, 28, 1),
    Sketcher.Constraint("Vertical", 0),
    Sketcher.Constraint("Horizontal", 1),
    Sketcher.Constraint("Vertical", 2),
    Sketcher.Constraint("Horizontal", 3),
    Sketcher.Constraint("Vertical", 4),
    Sketcher.Constraint("Horizontal", 5),
    Sketcher.Constraint("Vertical", 6),
    Sketcher.Constraint("Horizontal", 7),
    Sketcher.Constraint("Vertical", 8),
    Sketcher.Constraint("Horizontal", 9),
    Sketcher.Constraint("Vertical", 10),
    Sketcher.Constraint("Horizontal", 11),
    Sketcher.Constraint("Horizontal", 3, 2, 6, 2),
    Sketcher.Constraint("Horizontal", 5, 2, 8, 2),
    Sketcher.Constraint("Horizontal", 7, 2, 10, 2),
    Sketcher.Constraint("Equal", 3, 7),
    Sketcher.Constraint("Equal", 7, 11),
    Sketcher.Constraint("DistanceX", 1, 2, 1, 1, Q("3.5 mm")),
    Sketcher.Constraint("DistanceY", 0, 2, 0, 1, Q("3.544872 mm")),
    Sketcher.Constraint("DistanceX", 3, 1, 3, 2, Q("0.628205 mm")),
    Sketcher.Constraint("DistanceX", 5, 1, 5, 2, Q("0.942308 mm")),
    Sketcher.Constraint("DistanceY", 4, 2, 4, 1, Q("2.333333 mm")),
    Sketcher.Constraint("DistanceY", 0, 2, -1, 1, Q("17.93733 mm")),
    Sketcher.Constraint("DistanceX", 3, 2, -1, 1, Q("46.276252 mm")),
])
pocket1 = body.newObject("PartDesign::Pocket", "Pocket")
pocket1.Profile = sketch2
pocket1.Length = 5
pocket1.Reversed = True

doc.recompute()
